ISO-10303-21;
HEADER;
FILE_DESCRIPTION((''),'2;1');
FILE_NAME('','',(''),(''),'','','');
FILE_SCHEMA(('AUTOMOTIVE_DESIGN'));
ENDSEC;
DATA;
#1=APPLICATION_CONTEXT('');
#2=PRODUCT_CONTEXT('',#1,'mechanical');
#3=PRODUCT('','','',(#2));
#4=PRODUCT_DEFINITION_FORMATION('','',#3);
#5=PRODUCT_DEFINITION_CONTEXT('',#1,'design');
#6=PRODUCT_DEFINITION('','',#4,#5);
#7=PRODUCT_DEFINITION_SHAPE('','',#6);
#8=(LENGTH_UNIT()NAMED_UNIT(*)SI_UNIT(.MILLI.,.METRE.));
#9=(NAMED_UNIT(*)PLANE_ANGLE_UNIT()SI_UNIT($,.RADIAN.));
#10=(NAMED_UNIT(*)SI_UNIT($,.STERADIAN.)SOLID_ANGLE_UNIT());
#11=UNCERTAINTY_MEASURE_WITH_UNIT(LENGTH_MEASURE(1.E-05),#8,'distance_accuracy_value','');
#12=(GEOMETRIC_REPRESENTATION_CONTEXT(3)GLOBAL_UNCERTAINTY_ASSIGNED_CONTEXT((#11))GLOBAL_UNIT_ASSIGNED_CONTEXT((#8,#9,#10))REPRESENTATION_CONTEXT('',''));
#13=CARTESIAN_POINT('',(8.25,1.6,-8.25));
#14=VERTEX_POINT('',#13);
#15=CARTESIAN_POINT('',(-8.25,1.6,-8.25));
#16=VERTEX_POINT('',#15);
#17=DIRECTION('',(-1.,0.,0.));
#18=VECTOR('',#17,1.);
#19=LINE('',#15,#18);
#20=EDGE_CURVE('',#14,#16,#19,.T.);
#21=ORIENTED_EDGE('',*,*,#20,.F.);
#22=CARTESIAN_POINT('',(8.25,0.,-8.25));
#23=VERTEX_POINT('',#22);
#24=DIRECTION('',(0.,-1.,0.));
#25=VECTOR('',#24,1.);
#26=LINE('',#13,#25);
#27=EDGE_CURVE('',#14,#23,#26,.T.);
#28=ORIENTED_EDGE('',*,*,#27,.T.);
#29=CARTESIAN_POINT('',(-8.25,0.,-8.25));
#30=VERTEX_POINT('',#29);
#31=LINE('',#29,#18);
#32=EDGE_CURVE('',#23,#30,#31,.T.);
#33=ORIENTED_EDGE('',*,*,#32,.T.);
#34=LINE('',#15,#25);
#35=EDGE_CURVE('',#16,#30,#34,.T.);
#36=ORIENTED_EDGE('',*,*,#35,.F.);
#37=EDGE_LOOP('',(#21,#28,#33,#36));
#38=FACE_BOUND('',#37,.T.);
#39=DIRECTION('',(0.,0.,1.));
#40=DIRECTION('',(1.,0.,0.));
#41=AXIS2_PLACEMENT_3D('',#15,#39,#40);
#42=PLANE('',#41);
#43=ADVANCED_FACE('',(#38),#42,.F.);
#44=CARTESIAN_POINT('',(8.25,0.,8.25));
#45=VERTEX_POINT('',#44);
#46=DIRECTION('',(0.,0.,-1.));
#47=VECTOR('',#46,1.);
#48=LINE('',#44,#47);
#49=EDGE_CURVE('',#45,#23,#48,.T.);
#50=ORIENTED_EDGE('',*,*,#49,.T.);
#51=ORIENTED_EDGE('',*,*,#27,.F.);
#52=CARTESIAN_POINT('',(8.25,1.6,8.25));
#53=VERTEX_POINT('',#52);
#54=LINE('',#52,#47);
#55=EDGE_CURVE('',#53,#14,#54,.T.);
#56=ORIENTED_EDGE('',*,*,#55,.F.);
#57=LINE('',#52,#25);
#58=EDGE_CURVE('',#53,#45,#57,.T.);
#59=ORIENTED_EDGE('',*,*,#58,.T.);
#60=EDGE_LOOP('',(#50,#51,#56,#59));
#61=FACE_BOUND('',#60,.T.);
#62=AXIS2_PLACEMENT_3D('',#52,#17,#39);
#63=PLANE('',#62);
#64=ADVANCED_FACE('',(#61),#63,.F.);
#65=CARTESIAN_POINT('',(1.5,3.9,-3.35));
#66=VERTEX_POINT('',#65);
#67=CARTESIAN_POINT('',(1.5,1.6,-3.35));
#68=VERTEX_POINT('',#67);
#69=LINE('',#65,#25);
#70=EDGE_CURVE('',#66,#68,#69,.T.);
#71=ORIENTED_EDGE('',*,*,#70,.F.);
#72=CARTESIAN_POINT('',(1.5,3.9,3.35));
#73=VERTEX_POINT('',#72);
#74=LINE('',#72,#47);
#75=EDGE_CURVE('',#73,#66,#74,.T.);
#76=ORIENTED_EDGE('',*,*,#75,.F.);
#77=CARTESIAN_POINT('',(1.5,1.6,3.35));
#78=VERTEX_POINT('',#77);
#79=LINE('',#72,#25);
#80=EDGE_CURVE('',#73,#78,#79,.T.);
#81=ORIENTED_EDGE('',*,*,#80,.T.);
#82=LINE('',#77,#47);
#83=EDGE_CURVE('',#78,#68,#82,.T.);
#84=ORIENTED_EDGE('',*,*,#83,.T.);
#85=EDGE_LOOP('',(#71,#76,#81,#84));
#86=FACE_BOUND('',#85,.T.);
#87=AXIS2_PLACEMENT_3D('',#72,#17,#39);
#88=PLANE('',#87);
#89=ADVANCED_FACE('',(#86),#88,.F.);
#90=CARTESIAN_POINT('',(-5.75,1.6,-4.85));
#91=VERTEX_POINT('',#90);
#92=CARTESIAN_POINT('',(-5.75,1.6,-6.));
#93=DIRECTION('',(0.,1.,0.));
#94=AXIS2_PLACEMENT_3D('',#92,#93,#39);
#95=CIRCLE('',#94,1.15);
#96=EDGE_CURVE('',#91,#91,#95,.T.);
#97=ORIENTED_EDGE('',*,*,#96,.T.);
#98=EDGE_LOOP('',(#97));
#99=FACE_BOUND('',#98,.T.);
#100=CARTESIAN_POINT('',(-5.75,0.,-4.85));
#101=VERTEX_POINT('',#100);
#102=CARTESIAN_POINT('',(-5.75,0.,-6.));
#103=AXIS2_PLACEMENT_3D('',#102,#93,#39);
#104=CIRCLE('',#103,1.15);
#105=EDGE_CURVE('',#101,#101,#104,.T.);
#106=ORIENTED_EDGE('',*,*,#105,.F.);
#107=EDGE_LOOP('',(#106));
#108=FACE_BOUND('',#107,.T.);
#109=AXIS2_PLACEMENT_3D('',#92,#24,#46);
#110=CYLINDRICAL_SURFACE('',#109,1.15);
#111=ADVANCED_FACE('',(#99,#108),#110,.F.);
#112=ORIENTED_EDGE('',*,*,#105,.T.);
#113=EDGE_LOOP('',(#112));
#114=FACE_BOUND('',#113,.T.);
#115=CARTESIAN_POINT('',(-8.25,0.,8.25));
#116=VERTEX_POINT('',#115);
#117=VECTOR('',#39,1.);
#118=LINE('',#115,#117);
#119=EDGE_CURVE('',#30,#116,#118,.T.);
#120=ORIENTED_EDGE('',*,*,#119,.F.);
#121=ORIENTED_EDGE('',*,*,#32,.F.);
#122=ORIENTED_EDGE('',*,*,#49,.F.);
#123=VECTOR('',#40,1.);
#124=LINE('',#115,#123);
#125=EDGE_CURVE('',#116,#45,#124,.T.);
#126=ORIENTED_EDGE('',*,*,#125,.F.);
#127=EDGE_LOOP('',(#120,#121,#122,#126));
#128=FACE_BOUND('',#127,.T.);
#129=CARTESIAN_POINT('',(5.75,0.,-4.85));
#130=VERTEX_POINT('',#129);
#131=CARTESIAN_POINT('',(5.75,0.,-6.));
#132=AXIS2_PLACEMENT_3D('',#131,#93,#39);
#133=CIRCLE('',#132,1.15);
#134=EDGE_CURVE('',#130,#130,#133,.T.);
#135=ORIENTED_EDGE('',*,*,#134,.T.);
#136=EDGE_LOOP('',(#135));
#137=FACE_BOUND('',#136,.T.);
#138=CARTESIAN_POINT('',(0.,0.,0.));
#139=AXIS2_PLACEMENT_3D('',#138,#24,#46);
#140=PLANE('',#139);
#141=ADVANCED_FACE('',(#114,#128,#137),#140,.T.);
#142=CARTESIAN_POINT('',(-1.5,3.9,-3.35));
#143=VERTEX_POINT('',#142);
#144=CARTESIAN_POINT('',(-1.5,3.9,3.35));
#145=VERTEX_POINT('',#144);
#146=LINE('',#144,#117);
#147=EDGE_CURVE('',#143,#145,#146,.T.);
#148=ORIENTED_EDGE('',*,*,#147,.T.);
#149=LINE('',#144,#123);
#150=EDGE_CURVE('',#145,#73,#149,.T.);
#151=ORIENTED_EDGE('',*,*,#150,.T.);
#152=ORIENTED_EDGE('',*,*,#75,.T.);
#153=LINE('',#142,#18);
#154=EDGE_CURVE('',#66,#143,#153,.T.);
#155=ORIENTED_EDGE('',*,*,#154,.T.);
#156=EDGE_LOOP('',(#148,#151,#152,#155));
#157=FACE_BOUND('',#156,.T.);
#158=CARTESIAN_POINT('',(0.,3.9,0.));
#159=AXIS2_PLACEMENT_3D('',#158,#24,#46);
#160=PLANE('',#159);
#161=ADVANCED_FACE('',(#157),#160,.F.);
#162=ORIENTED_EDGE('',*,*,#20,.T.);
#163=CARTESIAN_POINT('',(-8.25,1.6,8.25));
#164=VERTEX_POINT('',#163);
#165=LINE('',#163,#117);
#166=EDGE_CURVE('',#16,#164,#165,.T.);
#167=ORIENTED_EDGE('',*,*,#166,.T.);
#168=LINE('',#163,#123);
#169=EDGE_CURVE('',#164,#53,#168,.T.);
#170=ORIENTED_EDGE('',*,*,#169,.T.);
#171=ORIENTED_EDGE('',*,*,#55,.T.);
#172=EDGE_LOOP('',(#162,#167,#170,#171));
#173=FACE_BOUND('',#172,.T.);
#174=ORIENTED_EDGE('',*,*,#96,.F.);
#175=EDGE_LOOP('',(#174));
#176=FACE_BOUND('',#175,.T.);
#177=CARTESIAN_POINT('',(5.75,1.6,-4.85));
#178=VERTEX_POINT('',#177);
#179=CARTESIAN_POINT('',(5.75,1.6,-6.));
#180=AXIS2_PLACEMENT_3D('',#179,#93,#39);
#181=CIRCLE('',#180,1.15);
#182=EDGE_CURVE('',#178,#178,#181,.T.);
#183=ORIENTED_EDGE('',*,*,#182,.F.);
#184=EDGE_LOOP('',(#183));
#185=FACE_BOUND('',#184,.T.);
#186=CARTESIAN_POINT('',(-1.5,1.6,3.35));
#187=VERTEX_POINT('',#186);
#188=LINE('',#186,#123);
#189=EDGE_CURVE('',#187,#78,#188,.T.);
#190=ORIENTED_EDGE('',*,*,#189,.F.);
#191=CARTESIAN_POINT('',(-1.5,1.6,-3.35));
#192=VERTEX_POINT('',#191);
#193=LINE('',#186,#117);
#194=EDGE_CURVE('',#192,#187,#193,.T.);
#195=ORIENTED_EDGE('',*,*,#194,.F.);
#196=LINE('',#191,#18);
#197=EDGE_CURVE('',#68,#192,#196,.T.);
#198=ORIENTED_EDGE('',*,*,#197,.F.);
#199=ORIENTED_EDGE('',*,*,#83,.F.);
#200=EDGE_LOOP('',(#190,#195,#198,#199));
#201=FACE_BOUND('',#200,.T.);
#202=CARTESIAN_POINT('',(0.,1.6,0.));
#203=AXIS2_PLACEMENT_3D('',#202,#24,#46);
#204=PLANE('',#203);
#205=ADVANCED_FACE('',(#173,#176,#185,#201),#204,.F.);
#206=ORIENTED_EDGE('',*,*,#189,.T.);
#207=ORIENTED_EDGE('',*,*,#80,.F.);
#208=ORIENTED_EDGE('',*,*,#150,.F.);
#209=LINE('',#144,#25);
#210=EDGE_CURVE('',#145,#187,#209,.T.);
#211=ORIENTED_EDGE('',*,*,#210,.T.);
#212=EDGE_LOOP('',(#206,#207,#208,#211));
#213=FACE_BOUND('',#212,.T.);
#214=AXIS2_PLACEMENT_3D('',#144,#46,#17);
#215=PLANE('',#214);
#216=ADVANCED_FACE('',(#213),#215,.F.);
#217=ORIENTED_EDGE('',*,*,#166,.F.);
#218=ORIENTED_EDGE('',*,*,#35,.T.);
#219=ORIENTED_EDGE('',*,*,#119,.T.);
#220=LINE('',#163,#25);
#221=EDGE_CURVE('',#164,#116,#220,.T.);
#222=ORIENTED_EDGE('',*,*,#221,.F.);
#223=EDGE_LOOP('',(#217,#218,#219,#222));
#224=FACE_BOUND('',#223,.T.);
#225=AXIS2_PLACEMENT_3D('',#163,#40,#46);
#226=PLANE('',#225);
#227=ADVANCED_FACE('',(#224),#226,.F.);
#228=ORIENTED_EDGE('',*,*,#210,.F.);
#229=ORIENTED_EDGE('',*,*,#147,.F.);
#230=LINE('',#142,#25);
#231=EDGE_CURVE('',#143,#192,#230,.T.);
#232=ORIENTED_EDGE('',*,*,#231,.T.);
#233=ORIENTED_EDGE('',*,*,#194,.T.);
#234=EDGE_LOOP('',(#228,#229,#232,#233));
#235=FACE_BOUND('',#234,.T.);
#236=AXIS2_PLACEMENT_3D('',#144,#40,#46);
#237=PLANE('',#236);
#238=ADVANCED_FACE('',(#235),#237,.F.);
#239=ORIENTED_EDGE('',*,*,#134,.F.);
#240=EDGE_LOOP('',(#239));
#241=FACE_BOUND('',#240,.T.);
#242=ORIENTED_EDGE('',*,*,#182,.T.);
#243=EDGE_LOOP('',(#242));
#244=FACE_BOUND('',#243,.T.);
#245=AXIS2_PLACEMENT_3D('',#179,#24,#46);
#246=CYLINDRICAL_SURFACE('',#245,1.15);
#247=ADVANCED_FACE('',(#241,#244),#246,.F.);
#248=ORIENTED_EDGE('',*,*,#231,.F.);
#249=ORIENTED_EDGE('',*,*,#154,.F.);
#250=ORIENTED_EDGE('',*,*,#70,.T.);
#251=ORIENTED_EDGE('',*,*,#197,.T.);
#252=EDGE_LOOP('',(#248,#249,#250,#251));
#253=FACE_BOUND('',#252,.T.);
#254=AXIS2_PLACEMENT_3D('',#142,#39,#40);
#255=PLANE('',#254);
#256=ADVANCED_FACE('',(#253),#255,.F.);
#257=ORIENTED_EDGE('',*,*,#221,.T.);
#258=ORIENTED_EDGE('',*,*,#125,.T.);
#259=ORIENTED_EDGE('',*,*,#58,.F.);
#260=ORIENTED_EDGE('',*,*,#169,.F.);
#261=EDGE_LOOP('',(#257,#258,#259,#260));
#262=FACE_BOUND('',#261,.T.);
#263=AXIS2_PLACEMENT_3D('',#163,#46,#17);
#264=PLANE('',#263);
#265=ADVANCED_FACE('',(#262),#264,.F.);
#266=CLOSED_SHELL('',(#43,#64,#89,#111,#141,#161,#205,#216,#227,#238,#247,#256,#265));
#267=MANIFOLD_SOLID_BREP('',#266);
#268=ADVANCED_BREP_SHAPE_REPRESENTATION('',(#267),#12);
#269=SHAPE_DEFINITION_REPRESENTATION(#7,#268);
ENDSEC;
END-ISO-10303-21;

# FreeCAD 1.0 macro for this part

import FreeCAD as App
import Part
import Sketcher
from FreeCAD import Vector

doc = App.newDocument("Part")
body = doc.addObject("PartDesign::Body", "Body")

# Sketch on XZ plane
sketch1 = body.newObject("Sketcher::SketchObject", "Sketch")
sketch1.AttachmentSupport = (doc.getObject("XZ_Plane"), [""])
sketch1.MapMode = "FlatFace"
sketch1.addGeometry([
    Part.LineSegment(Vector(-8.2, -8.2, 0), Vector(-8.2, 8.2, 0)),  # 0
    Part.LineSegment(Vector(-8.2, 8.2, 0), Vector(8.2, 8.2, 0)),  # 1
    Part.LineSegment(Vector(8.2, 8.2, 0), Vector(8.2, -8.2, 0)),  # 2
    Part.LineSegment(Vector(8.2, -8.2, 0), Vector(-8.2, -8.2, 0)),  # 3
    Part.Circle(Vector(-5.8, -6, 0), Vector(0, 0, 1), 1.1),  # 4
    Part.Circle(Vector(5.8, -6, 0), Vector(0, 0, 1), 1.1),  # 5
], False)
sketch1.addConstraint([
    Sketcher.Constraint("Coincident", 0, 2, 1, 1),
    Sketcher.Constraint("Coincident", 1, 2, 2, 1),
    Sketcher.Constraint("Coincident", 2, 2, 3, 1),
    Sketcher.Constraint("Coincident", 3, 2, 0, 1),
    Sketcher.Constraint("Vertical", 0),
    Sketcher.Constraint("Horizontal", 1),
    Sketcher.Constraint("Vertical", 2),
    Sketcher.Constraint("Horizontal", 3),
    Sketcher.Constraint("Equal", 4, 5),
    Sketcher.Constraint("Symmetric", 0, 2, 2, 2, -1, 1),
    Sketcher.Constraint("Symmetric", 4, 3, 5, 3, -2),
    Sketcher.Constraint("Equal", 3, 0),
    Sketcher.Constraint("Diameter", 4, 2.3),
    Sketcher.Constraint("DistanceX", 1, 1, 1, 2, 16.5),
    Sketcher.Constraint("DistanceY", 4, 3, -1, 1, 6.0),
    Sketcher.Constraint("DistanceX", 0, 2, 5, 3, 14.0),
])
pad1 = body.newObject("PartDesign::Pad", "Pad")
pad1.Profile = sketch1
pad1.Length = 1.6
pad1.Reversed = True

# Sketch on XZ plane
sketch2 = body.newObject("Sketcher::SketchObject", "Sketch001")
sketch2.AttachmentSupport = (doc.getObject("XZ_Plane"), [""])
sketch2.MapMode = "FlatFace"
sketch2.AttachmentOffset = App.Placement(Vector(0, 0, -1.6), App.Rotation())
sketch2.addGeometry([
    Part.LineSegment(Vector(-1.5, -3.4, 0), Vector(-1.5, 3.4, 0)),
    Part.LineSegment(Vector(-1.5, 3.4, 0), Vector(1.5, 3.4, 0)),
    Part.LineSegment(Vector(1.5, 3.4, 0), Vector(1.5, -3.4, 0)),
    Part.LineSegment(Vector(1.5, -3.4, 0), Vector(-1.5, -3.4, 0)),
], False)
sketch2.addConstraint([
    Sketcher.Constraint("Coincident", 0, 2, 1, 1),
    Sketcher.Constraint("Coincident", 1, 2, 2, 1),
    Sketcher.Constraint("Coincident", 2, 2, 3, 1),
    Sketcher.Constraint("Coincident", 3, 2, 0, 1),
    Sketcher.Constraint("Vertical", 0),
    Sketcher.Constraint("Horizontal", 1),
    Sketcher.Constraint("Vertical", 2),
    Sketcher.Constraint("Horizontal", 3),
    Sketcher.Constraint("Symmetric", 0, 2, 2, 2, -1, 1),
    Sketcher.Constraint("DistanceX", 1, 1, 1, 2, 3.0),
    Sketcher.Constraint("DistanceY", 0, 1, 0, 2, 6.7),
])
pad2 = body.newObject("PartDesign::Pad", "Pad001")
pad2.Profile = sketch2
pad2.Length = 2.3
pad2.Reversed = True

doc.recompute()
